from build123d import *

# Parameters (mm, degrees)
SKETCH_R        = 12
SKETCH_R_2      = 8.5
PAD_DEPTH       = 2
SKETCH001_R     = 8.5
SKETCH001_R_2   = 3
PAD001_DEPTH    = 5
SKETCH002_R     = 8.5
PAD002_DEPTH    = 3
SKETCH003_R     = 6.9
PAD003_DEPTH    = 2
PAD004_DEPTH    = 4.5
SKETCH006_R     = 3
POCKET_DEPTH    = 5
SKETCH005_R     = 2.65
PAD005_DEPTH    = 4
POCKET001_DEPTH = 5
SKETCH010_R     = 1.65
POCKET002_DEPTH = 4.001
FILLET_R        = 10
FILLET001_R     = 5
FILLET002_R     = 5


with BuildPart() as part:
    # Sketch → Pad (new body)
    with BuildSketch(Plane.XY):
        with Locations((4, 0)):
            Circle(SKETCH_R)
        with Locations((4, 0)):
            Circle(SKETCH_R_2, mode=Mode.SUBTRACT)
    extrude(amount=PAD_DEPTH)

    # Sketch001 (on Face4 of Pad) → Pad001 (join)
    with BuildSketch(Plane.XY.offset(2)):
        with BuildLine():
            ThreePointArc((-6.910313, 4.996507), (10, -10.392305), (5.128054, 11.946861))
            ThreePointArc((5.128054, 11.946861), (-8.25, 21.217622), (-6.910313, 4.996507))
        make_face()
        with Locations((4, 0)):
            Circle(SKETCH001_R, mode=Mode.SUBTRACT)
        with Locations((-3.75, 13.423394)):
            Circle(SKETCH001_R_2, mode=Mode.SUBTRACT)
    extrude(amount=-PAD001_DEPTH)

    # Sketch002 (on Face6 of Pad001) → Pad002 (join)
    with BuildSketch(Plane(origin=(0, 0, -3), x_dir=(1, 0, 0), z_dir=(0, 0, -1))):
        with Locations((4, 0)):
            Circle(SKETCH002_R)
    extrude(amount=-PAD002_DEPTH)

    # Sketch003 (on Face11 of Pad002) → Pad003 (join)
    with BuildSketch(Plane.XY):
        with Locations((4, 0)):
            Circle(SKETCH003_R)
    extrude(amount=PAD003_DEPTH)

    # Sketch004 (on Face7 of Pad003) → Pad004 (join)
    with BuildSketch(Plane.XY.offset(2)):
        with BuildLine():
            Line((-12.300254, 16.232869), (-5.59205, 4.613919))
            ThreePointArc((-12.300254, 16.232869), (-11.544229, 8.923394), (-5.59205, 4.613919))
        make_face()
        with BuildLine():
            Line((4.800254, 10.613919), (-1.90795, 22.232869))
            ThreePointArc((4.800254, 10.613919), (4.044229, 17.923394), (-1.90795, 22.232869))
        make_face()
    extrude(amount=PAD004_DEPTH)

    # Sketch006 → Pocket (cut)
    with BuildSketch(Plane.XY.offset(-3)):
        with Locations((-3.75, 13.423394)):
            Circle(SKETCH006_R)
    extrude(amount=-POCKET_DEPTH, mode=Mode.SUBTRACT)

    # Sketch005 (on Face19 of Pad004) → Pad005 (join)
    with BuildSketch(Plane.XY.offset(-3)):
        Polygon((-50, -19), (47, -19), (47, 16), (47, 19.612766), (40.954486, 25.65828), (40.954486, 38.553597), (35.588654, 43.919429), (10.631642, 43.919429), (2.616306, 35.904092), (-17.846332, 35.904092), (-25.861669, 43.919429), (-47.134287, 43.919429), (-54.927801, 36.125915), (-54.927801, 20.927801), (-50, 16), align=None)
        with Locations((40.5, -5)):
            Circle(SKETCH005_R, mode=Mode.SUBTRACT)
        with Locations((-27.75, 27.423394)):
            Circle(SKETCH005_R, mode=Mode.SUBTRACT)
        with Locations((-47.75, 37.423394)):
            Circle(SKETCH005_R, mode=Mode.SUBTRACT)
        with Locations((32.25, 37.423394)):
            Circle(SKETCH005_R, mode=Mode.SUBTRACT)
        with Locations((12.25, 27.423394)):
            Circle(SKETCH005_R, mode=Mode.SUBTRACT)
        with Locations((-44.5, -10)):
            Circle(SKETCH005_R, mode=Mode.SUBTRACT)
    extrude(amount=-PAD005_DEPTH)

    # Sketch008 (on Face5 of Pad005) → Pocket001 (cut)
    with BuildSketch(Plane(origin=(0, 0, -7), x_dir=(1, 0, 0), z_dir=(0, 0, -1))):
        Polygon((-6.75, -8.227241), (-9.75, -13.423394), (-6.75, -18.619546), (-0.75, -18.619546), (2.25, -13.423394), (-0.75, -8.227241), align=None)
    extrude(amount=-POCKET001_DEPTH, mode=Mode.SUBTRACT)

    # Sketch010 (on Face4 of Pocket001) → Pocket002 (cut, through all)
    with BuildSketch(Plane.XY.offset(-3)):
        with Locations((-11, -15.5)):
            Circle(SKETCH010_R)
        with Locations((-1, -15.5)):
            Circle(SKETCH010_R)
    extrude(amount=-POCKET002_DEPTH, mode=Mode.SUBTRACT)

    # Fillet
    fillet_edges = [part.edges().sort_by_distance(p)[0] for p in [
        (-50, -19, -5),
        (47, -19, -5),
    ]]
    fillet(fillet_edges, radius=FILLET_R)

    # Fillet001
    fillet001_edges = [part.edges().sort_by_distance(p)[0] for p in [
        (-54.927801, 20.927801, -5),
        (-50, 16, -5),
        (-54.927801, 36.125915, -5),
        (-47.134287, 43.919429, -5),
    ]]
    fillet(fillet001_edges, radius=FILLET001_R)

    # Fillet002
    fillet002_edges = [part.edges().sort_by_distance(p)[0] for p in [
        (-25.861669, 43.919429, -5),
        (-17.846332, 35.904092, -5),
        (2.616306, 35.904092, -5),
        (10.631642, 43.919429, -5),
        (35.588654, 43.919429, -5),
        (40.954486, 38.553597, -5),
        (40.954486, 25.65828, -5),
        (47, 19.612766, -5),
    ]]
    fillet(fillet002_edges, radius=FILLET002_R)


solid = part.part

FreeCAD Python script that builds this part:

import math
import FreeCAD as App
import Part
import Sketcher

V = App.Vector
Q = App.Units.Quantity


def edges_at(feature, points):
    """Names of the edges that pass closest to the given points."""
    edges = feature.Shape.Edges
    near = lambda p: min(range(len(edges)), key=lambda i: edges[i].distToShape(Part.Vertex(*p))[0])
    return sorted({f"Edge{near(p) + 1}" for p in points})

doc = App.newDocument("Part")
body = doc.addObject("PartDesign::Body", "Body")

sketch1 = doc.addObject("Sketcher::SketchObject", "Sketch")
body.addObject(sketch1)
sketch1.AttachmentSupport = (doc.XY_Plane, [""])
sketch1.MapMode = "FlatFace"
sketch1.addGeometry([
    Part.Circle(V(4, 0, 0), V(0, 0, 1), 12),
    Part.Circle(V(4, 0, 0), V(0, 0, 1), 8),
], False)
sketch1.addConstraint([
    Sketcher.Constraint("Coincident", 1, 3, 0, 3),
    Sketcher.Constraint("PointOnObject", 0, 3, -1),
    Sketcher.Constraint("Diameter", 0, 24.0),
    Sketcher.Constraint("Diameter", 1, 17.0),
    Sketcher.Constraint("DistanceX", -1, 1, 0, 3, 4.0),
])
pad1 = doc.addObject("PartDesign::Pad", "Pad")
body.addObject(pad1)
pad1.Profile = sketch1
pad1.Length = 2

sketch2 = doc.addObject("Sketcher::SketchObject", "Sketch001")
body.addObject(sketch2)
sketch2.AttachmentSupport = (doc.XY_Plane, [""])
sketch2.MapMode = "FlatFace"
sketch2.AttachmentOffset = App.Placement(V(0, 0, 2), App.Rotation())
sketch2.addGeometry([
    Part.ArcOfCircle(Part.Circle(V(4, 0, 0), V(0, 0, 1), 12), math.radians(155), math.radians(445)),
    Part.ArcOfCircle(Part.Circle(V(-3.8, 13.4, 0), V(0, 0, 1), 9), math.radians(-9), math.radians(249)),
    Part.Circle(V(4, 0, 0), V(0, 0, 1), 8.5),
    Part.Circle(V(-3.8, 13.4, 0), V(0, 0, 1), 3),
], False)
sketch2.addConstraint([
    Sketcher.Constraint("Coincident", 0, 1, 1, 2),
    Sketcher.Constraint("Coincident", 1, 1, 0, 2),
    Sketcher.Constraint("Coincident", 2, 3, 0, 3),
    Sketcher.Constraint("Coincident", 3, 3, 1, 3),
    Sketcher.Constraint("PointOnObject", 0, 3, -1),
    Sketcher.Constraint("Diameter", 2, 17.0),
    Sketcher.Constraint("Diameter", 3, 6.0),
    Sketcher.Constraint("Radius", 0, 12.0),
    Sketcher.Constraint("Radius", 1, 9.0),
    Sketcher.Constraint("DistanceX", -1, 1, 0, 3, 3.999999),
    Sketcher.Constraint("DistanceX", 1, 3, -1, 1, 3.75),
    Sketcher.Constraint("DistanceY", -1, 1, 1, 3, 13.423394),
])
pad2 = doc.addObject("PartDesign::Pad", "Pad001")
body.addObject(pad2)
pad2.Profile = sketch2
pad2.Length = 5
pad2.Reversed = True

sketch3 = doc.addObject("Sketcher::SketchObject", "Sketch002")
body.addObject(sketch3)
sketch3.AttachmentSupport = (doc.XY_Plane, [""])
sketch3.MapMode = "FlatFace"
sketch3.AttachmentOffset = App.Placement(V(0, 0, -3), App.Rotation())
sketch3.addGeometry(Part.Circle(V(4, 0, 0), V(0, 0, 1), 8), False)
sketch3.addConstraint([
    Sketcher.Constraint("PointOnObject", 0, 3, -1),
    Sketcher.Constraint("Diameter", 0, 17.0),
    Sketcher.Constraint("DistanceX", -1, 1, 0, 3, 4.0),
])
pad3 = doc.addObject("PartDesign::Pad", "Pad002")
body.addObject(pad3)
pad3.Profile = sketch3
pad3.Length = 3

sketch4 = doc.addObject("Sketcher::SketchObject", "Sketch003")
body.addObject(sketch4)
sketch4.AttachmentSupport = (doc.XY_Plane, [""])
sketch4.MapMode = "FlatFace"
sketch4.addGeometry(Part.Circle(V(4, 0, 0), V(0, 0, 1), 7), False)
sketch4.addConstraint([
    Sketcher.Constraint("PointOnObject", 0, 3, -1),
    Sketcher.Constraint("Diameter", 0, 13.8),
    Sketcher.Constraint("DistanceX", -1, 1, 0, 3, 4.0),
])
pad4 = doc.addObject("PartDesign::Pad", "Pad003")
body.addObject(pad4)
pad4.Profile = sketch4
pad4.Length = 2

sketch5 = doc.addObject("Sketcher::SketchObject", "Sketch004")
body.addObject(sketch5)
sketch5.AttachmentSupport = (doc.XY_Plane, [""])
sketch5.MapMode = "FlatFace"
sketch5.AttachmentOffset = App.Placement(V(0, 0, 2), App.Rotation())
sketch5.addGeometry([
    Part.LineSegment(V(-6, 5, 0), V(-12, 16, 0)),
    Part.ArcOfCircle(Part.Circle(V(-4, 13, 0), V(0, 0, 1), 9), math.radians(162), math.radians(258)),
    Part.LineSegment(V(-2, 22, 0), V(5, 11, 0)),
    Part.ArcOfCircle(Part.Circle(V(-4, 13, 0), V(0, 0, 1), 9), math.radians(-18), math.radians(78)),
], False)
sketch5.addConstraint([
    Sketcher.Constraint("Coincident", 0, 1, 1, 2),
    Sketcher.Constraint("Coincident", 1, 1, 0, 2),
    Sketcher.Constraint("Coincident", 2, 1, 3, 2),
    Sketcher.Constraint("Coincident", 3, 1, 2, 2),
    Sketcher.Constraint("Coincident", 3, 3, 1, 3),
    Sketcher.Constraint("Equal", 1, 3),
    Sketcher.Constraint("Parallel", 0, 2),
    Sketcher.Constraint("Equal", 0, 2),
    Sketcher.Constraint("Radius", 1, 8.999999),
    Sketcher.Constraint("Angle", 0, Q("120 deg")),
    Sketcher.Constraint("DistanceY", 1, 1, 2, 1, 6.0),
    Sketcher.Constraint("DistanceX", 1, 3, -1, 1, 3.750001),
    Sketcher.Constraint("DistanceY", -1, 1, 0, 1, 4.613919),
])
pad5 = doc.addObject("PartDesign::Pad", "Pad004")
body.addObject(pad5)
pad5.Profile = sketch5
pad5.Length = 4.5

sketch6 = doc.addObject("Sketcher::SketchObject", "Sketch005")
body.addObject(sketch6)
sketch6.AttachmentSupport = (doc.XY_Plane, [""])
sketch6.MapMode = "FlatFace"
sketch6.AttachmentOffset = App.Placement(V(0, 0, -3), App.Rotation())
sketch6.addGeometry(Part.Circle(V(-3.8, 13.4, 0), V(0, 0, 1), 3), False)
sketch6.addConstraint([
    Sketcher.Constraint("Diameter", 0, 6.0),
    Sketcher.Constraint("DistanceX", 0, 3, -1, 1, 3.75),
    Sketcher.Constraint("DistanceY", -1, 1, 0, 3, 13.423394),
])
pocket1 = doc.addObject("PartDesign::Pocket", "Pocket")
body.addObject(pocket1)
pocket1.Profile = sketch6
pocket1.Length = 5

sketch7 = doc.addObject("Sketcher::SketchObject", "Sketch006")
body.addObject(sketch7)
sketch7.AttachmentSupport = (doc.XY_Plane, [""])
sketch7.MapMode = "FlatFace"
sketch7.AttachmentOffset = App.Placement(V(0, 0, -3), App.Rotation())
sketch7.addGeometry([
    Part.LineSegment(V(-50, -19, 0), V(47, -19, 0)),
    Part.LineSegment(V(47, -19, 0), V(47, 19.6, 0)),
    Part.LineSegment(V(47, 19.6, 0), V(41, 25.7, 0)),
    Part.LineSegment(V(41, 25.7, 0), V(41, 38.6, 0)),
    Part.LineSegment(V(41, 38.6, 0), V(35.6, 43.9, 0)),
    Part.LineSegment(V(35.6, 43.9, 0), V(10.6, 43.9, 0)),
    Part.LineSegment(V(10.6, 43.9, 0), V(2.6, 35.9, 0)),
    Part.LineSegment(V(2.6, 35.9, 0), V(-17.8, 35.9, 0)),
    Part.LineSegment(V(-17.8, 35.9, 0), V(-25.9, 43.9, 0)),
    Part.LineSegment(V(-25.9, 43.9, 0), V(-47.1, 43.9, 0)),
    Part.LineSegment(V(-47.1, 43.9, 0), V(-54.9, 36.1, 0)),
    Part.LineSegment(V(-54.9, 36.1, 0), V(-54.9, 20.9, 0)),
    Part.LineSegment(V(-54.9, 20.9, 0), V(-50, 16, 0)),
    Part.LineSegment(V(-50, 16, 0), V(-50, -19, 0)),
    Part.Circle(V(-44.5, -10, 0), V(0, 0, 1), 2.6),
    Part.Circle(V(40.5, -5, 0), V(0, 0, 1), 2.6),
    Part.Circle(V(-27.8, 27.4, 0), V(0, 0, 1), 2.6),
    Part.Circle(V(-47.8, 37.4, 0), V(0, 0, 1), 2.6),
    Part.Circle(V(12.2, 27.4, 0), V(0, 0, 1), 2.6),
    Part.Circle(V(32.2, 37.4, 0), V(0, 0, 1), 2.6),
], False)
sketch7.addConstraint([
    Sketcher.Constraint("Coincident", 0, 2, 1, 1),
    Sketcher.Constraint("Coincident", 1, 2, 2, 1),
    Sketcher.Constraint("Coincident", 2, 2, 3, 1),
    Sketcher.Constraint("Coincident", 3, 2, 4, 1),
    Sketcher.Constraint("Coincident", 4, 2, 5, 1),
    Sketcher.Constraint("Coincident", 5, 2, 6, 1),
    Sketcher.Constraint("Coincident", 6, 2, 7, 1),
    Sketcher.Constraint("Coincident", 7, 2, 8, 1),
    Sketcher.Constraint("Coincident", 8, 2, 9, 1),
    Sketcher.Constraint("Coincident", 9, 2, 10, 1),
    Sketcher.Constraint("Coincident", 10, 2, 11, 1),
    Sketcher.Constraint("Coincident", 11, 2, 12, 1),
    Sketcher.Constraint("Coincident", 12, 2, 13, 1),
    Sketcher.Constraint("Coincident", 13, 2, 0, 1),
    Sketcher.Constraint("Horizontal", 0),
    Sketcher.Constraint("Vertical", 1),
    Sketcher.Constraint("Vertical", 3),
    Sketcher.Constraint("Horizontal", 5),
    Sketcher.Constraint("Horizontal", 7),
    Sketcher.Constraint("Horizontal", 9),
    Sketcher.Constraint("Vertical", 11),
    Sketcher.Constraint("Vertical", 13),
    Sketcher.Constraint("Equal", 14, 15),
    Sketcher.Constraint("Equal", 15, 16),
    Sketcher.Constraint("Equal", 16, 17),
    Sketcher.Constraint("Equal", 17, 18),
    Sketcher.Constraint("Equal", 18, 19),
    Sketcher.Constraint("Parallel", 2, 4),
    Sketcher.Constraint("Perpendicular", 4, 6),
    Sketcher.Constraint("Perpendicular", 6, 8),
    Sketcher.Constraint("Perpendicular", 8, 10),
    Sketcher.Constraint("Perpendicular", 10, 12),
    Sketcher.Constraint("Horizontal", 16, 3, 18, 3),
    Sketcher.Constraint("Horizontal", 17, 3, 19, 3),
    Sketcher.Constraint("Horizontal", 5, 2, 8, 2),
    Sketcher.Constraint("Equal", 6, 8),
    Sketcher.Constraint("Diameter", 14, 5.3),
    Sketcher.Constraint("DistanceX", 0, 1, 0, 2, 97.0),
    Sketcher.Constraint("DistanceY", 13, 2, 13, 1, 35.0),
    Sketcher.Constraint("DistanceY", 14, 3, -1, 1, 10.0),
    Sketcher.Constraint("DistanceY", 15, 3, -1, 1, 5.0),
    Sketcher.Constraint("DistanceX", -1, 1, 0, 2, 47.0),
    Sketcher.Constraint("DistanceY", 0, 2, -1, 1, 19.0),
    Sketcher.Constraint("DistanceX", 14, 3, 15, 3, 85.0),
    Sketcher.Constraint("DistanceX", 17, 3, 16, 3, 20.0),
    Sketcher.Constraint("DistanceY", 16, 3, 17, 3, 10.0),
    Sketcher.Constraint("DistanceX", 16, 3, 18, 3, 40.0),
    Sketcher.Constraint("DistanceX", 18, 3, 19, 3, 20.0),
    Sketcher.Constraint("DistanceX", 14, 3, -1, 1, 44.5),
    Sketcher.Constraint("DistanceX", 16, 3, -1, 1, 27.75),
    Sketcher.Constraint("Distance", 8, 11.335398),
    Sketcher.Constraint("DistanceX", 5, 2, 5, 1, 24.957012),
    Sketcher.Constraint("DistanceX", 9, 2, 9, 1, 21.272618),
    Sketcher.Constraint("DistanceX", 10, 2, -1, 1, 54.927801),
    Sketcher.Constraint("DistanceX", 7, 2, 7, 1, 20.462638),
    Sketcher.Constraint("DistanceY", 1, 1, 1, 2, 38.612766),
    Sketcher.Constraint("DistanceY", 3, 1, 3, 2, 12.895317),
    Sketcher.Constraint("DistanceY", 11, 2, 11, 1, 15.198114),
    Sketcher.Constraint("DistanceY", -1, 1, 2, 2, 25.65828),
    Sketcher.Constraint("DistanceY", 1, 2, 19, 3, 17.810628),
])
pad6 = doc.addObject("PartDesign::Pad", "Pad005")
body.addObject(pad6)
pad6.Profile = sketch7
pad6.Length = 4
pad6.Reversed = True

sketch8 = doc.addObject("Sketcher::SketchObject", "Sketch007")
body.addObject(sketch8)
sketch8.AttachmentSupport = (doc.XY_Plane, [""])
sketch8.MapMode = "FlatFace"
sketch8.AttachmentOffset = App.Placement(V(0, 0, -7), App.Rotation())
sketch8.addGeometry([
    Part.LineSegment(V(-7, 8, 0), V(-10, 13, 0)),
    Part.LineSegment(V(-10, 13, 0), V(-7, 19, 0)),
    Part.LineSegment(V(-7, 19, 0), V(-1, 19, 0)),
    Part.LineSegment(V(-1, 19, 0), V(2, 13, 0)),
    Part.LineSegment(V(2, 13, 0), V(-1, 8, 0)),
    Part.LineSegment(V(-1, 8, 0), V(-7, 8, 0)),
], False)
sketch8.addConstraint([
    Sketcher.Constraint("Coincident", 0, 2, 1, 1),
    Sketcher.Constraint("Coincident", 1, 2, 2, 1),
    Sketcher.Constraint("Coincident", 2, 2, 3, 1),
    Sketcher.Constraint("Coincident", 3, 2, 4, 1),
    Sketcher.Constraint("Coincident", 4, 2, 5, 1),
    Sketcher.Constraint("Coincident", 5, 2, 0, 1),
    Sketcher.Constraint("Horizontal", 2),
    Sketcher.Constraint("Horizontal", 5),
    Sketcher.Constraint("Parallel", 0, 3),
    Sketcher.Constraint("Parallel", 1, 4),
    Sketcher.Constraint("Horizontal", 0, 2, 3, 2),
    Sketcher.Constraint("Vertical", 2, 2, 4, 2),
    Sketcher.Constraint("Vertical", 1, 2, 5, 2),
    Sketcher.Constraint("DistanceX", 2, 1, 2, 2, 6.0),
    Sketcher.Constraint("Angle", 0, Q("119.999997 deg")),
    Sketcher.Constraint("Distance", 0, 6.0),
    Sketcher.Constraint("DistanceX", 0, 2, -1, 1, 9.75),
    Sketcher.Constraint("DistanceY", -1, 1, 4, 2, 8.227241),
])
pocket2 = doc.addObject("PartDesign::Pocket", "Pocket001")
body.addObject(pocket2)
pocket2.Profile = sketch8
pocket2.Length = 5
pocket2.Reversed = True

sketch9 = doc.addObject("Sketcher::SketchObject", "Sketch008")
body.addObject(sketch9)
sketch9.AttachmentSupport = (doc.XY_Plane, [""])
sketch9.MapMode = "FlatFace"
sketch9.AttachmentOffset = App.Placement(V(0, 0, -3), App.Rotation())
sketch9.addGeometry([
    Part.Circle(V(-11, -15.5, 0), V(0, 0, 1), 1.6),
    Part.Circle(V(-1, -15.5, 0), V(0, 0, 1), 1.6),
], False)
sketch9.addConstraint([
    Sketcher.Constraint("Equal", 0, 1),
    Sketcher.Constraint("Horizontal", 0, 3, 1, 3),
    Sketcher.Constraint("Diameter", 0, 3.3),
    Sketcher.Constraint("DistanceX", 0, 3, -1, 1, 11.0),
    Sketcher.Constraint("DistanceX", 1, 3, -1, 1, 1.0),
    Sketcher.Constraint("DistanceY", 0, 3, -1, 1, 15.5),
])
pocket3 = doc.addObject("PartDesign::Pocket", "Pocket002")
body.addObject(pocket3)
pocket3.Profile = sketch9
pocket3.Type = "ThroughAll"
doc.recompute()

fillet = doc.addObject("PartDesign::Fillet", "Fillet")
body.addObject(fillet)
fillet.Base = (pocket3, edges_at(pocket3, [(-50, -19, -5), (47, -19, -5)]))
fillet.Radius = 10
doc.recompute()

fillet2 = doc.addObject("PartDesign::Fillet", "Fillet001")
body.addObject(fillet2)
fillet2.Base = (fillet, edges_at(fillet, [
    (-54.928, 20.928, -5),
    (-50, 16, -5),
    (-54.928, 36.126, -5),
    (-47.134, 43.919, -5),
]))
fillet2.Radius = 5
doc.recompute()

fillet3 = doc.addObject("PartDesign::Fillet", "Fillet002")
body.addObject(fillet3)
fillet3.Base = (fillet2, edges_at(fillet2, [
    (-25.862, 43.919, -5),
    (-17.846, 35.904, -5),
    (2.616, 35.904, -5),
    (10.632, 43.919, -5),
    (35.589, 43.919, -5),
    (40.954, 38.554, -5),
    (40.954, 25.658, -5),
    (47, 19.613, -5),
]))
fillet3.Radius = 5

doc.recompute()
